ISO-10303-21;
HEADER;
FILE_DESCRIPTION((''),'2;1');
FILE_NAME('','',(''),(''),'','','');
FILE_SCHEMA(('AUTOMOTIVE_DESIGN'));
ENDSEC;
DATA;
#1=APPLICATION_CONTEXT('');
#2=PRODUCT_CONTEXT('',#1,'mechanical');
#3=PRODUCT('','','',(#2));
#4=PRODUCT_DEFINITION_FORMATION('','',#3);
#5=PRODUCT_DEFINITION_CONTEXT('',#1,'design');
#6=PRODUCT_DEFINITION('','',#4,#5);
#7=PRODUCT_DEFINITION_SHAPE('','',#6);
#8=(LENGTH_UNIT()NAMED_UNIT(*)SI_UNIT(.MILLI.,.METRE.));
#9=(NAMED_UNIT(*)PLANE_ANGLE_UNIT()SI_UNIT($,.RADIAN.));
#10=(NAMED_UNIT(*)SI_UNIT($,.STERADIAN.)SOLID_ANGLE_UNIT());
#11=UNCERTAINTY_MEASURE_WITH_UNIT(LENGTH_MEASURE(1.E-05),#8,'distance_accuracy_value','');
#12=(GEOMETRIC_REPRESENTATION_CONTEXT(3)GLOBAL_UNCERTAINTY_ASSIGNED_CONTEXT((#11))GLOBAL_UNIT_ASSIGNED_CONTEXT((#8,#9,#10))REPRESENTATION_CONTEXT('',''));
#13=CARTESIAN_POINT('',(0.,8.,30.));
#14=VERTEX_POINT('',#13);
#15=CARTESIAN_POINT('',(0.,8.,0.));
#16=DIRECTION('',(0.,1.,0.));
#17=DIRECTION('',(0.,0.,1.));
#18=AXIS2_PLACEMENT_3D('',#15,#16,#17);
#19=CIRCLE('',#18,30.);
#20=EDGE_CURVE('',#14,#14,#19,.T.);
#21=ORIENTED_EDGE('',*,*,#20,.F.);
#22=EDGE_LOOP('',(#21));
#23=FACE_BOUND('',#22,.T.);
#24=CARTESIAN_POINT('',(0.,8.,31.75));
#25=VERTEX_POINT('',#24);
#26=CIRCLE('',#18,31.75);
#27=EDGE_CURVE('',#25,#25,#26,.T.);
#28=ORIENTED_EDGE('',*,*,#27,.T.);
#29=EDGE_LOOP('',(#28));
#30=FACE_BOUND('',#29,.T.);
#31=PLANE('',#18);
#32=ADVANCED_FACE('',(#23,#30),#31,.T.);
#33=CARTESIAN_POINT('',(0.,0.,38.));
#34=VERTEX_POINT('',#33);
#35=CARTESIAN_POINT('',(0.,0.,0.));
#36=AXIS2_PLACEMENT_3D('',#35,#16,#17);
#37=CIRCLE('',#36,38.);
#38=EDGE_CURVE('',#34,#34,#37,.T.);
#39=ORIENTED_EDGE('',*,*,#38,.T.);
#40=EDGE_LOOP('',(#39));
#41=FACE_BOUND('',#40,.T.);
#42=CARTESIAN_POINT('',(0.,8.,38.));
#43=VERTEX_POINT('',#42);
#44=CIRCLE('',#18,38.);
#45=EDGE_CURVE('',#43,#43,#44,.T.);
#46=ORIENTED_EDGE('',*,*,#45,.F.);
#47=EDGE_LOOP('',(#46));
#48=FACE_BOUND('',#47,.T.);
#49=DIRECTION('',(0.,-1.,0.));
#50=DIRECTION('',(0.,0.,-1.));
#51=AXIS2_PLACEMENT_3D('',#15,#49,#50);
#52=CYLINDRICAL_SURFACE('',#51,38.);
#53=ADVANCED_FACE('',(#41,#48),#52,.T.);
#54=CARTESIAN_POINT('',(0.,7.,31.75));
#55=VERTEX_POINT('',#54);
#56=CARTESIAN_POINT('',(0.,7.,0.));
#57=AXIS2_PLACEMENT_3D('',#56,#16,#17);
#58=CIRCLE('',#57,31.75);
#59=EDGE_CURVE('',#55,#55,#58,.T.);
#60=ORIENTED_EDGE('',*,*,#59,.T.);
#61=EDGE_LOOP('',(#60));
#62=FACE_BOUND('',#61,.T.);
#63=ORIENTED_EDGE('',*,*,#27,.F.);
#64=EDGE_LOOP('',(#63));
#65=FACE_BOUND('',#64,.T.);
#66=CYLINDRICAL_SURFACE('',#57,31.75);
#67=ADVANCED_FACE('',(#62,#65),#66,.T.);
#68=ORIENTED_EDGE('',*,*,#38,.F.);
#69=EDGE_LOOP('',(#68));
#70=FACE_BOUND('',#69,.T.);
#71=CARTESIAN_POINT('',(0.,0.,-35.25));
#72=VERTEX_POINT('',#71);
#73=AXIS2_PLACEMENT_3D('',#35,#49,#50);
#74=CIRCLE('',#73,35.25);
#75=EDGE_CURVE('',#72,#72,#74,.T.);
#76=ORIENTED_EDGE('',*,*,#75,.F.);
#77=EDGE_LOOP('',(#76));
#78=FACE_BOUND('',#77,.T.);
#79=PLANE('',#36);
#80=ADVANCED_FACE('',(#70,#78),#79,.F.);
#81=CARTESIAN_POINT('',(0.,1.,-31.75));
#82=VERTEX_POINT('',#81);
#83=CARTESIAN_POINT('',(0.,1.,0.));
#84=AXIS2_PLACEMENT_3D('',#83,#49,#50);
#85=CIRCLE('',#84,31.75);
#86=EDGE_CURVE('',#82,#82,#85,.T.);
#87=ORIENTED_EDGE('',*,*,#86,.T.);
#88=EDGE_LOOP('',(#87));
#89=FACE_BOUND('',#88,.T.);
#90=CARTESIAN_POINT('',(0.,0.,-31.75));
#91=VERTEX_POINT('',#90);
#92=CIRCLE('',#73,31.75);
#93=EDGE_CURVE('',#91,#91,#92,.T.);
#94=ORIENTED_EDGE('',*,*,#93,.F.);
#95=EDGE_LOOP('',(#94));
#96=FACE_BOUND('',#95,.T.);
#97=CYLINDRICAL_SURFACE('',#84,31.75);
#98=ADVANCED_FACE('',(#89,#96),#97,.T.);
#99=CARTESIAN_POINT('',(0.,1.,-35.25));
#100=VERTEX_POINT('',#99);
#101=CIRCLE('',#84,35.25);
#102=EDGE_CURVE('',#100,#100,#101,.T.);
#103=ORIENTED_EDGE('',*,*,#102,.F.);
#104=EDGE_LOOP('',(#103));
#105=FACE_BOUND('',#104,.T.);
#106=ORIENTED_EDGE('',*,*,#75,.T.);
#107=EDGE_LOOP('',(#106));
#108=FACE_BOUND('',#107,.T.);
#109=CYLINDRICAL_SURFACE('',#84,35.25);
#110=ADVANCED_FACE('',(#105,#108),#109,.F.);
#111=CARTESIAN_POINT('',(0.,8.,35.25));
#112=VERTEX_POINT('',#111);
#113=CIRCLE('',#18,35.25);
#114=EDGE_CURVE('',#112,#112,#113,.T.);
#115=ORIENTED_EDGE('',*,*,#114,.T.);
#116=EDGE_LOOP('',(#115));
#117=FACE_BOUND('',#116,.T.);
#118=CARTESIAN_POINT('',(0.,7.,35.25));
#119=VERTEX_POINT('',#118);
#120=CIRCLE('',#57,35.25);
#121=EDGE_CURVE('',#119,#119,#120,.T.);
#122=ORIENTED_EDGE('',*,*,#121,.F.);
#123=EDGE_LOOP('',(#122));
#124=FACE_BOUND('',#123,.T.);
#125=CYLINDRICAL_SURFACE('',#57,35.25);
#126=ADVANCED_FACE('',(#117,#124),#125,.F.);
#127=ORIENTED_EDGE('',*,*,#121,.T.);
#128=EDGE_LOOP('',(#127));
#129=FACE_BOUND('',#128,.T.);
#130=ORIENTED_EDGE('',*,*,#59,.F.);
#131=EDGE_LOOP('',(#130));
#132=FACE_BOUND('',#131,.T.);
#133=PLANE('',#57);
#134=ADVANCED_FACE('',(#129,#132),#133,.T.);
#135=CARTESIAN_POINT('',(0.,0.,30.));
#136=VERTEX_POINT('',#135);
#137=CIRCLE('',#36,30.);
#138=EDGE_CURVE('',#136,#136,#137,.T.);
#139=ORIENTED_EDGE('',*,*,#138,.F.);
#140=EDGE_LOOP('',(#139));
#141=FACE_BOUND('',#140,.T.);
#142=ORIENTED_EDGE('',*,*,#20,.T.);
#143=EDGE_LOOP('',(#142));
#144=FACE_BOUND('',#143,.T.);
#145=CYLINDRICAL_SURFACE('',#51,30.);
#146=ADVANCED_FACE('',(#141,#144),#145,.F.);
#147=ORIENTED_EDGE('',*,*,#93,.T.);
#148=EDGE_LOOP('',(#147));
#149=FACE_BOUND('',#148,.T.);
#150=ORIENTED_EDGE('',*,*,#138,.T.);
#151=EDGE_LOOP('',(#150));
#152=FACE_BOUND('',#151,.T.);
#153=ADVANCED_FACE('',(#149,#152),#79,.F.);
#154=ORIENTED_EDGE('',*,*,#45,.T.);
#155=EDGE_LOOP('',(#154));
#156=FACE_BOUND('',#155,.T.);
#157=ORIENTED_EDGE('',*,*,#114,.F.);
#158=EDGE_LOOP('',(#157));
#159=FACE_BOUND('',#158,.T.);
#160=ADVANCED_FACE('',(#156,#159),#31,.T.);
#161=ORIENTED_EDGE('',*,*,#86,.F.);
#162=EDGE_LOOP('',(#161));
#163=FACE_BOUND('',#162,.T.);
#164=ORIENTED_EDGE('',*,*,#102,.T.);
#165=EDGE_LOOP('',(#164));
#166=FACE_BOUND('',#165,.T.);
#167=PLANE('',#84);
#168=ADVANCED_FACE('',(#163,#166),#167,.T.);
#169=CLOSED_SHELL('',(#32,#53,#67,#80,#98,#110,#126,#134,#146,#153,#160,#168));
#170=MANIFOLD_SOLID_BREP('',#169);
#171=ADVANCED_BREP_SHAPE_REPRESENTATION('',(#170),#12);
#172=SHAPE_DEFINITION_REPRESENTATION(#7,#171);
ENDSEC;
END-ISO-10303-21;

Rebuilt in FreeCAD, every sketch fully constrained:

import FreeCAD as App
import Part
import Sketcher

doc = App.newDocument("Part")
body = doc.addObject("PartDesign::Body", "Body")

# Sketch on XZ plane
sketch1 = doc.addObject("Sketcher::SketchObject", "Sketch")
body.addObject(sketch1)
sketch1.AttachmentSupport = (doc.XZ_Plane, [""])
sketch1.MapMode = "FlatFace"
sketch1.addGeometry(Part.Circle(App.Vector(0, 0, 0), App.Vector(0, 0, 1), 38), False)
sketch1.addGeometry(Part.Circle(App.Vector(0, 0, 0), App.Vector(0, 0, 1), 30), False)
sketch1.addConstraint(Sketcher.Constraint("Coincident", 0, 3, -1, 1))
sketch1.addConstraint(Sketcher.Constraint("Coincident", 1, 3, -1, 1))
sketch1.addConstraint(Sketcher.Constraint("Diameter", 0, 76.0))
sketch1.addConstraint(Sketcher.Constraint("Diameter", 1, 60.0))
pad1 = doc.addObject("PartDesign::Pad", "Pad")
body.addObject(pad1)
pad1.Profile = sketch1
pad1.Length = 8
pad1.Reversed = True

# Sketch on XZ plane
sketch2 = doc.addObject("Sketcher::SketchObject", "Sketch001")
body.addObject(sketch2)
sketch2.AttachmentSupport = (doc.XZ_Plane, [""])
sketch2.MapMode = "FlatFace"
sketch2.AttachmentOffset = App.Placement(App.Vector(0, 0, -8), App.Rotation())
sketch2.addGeometry(Part.Circle(App.Vector(0, 0, 0), App.Vector(0, 0, 1), 35), False)
sketch2.addGeometry(Part.Circle(App.Vector(0, 0, 0), App.Vector(0, 0, 1), 32), False)
sketch2.addConstraint(Sketcher.Constraint("Coincident", 0, 3, -1, 1))
sketch2.addConstraint(Sketcher.Constraint("Coincident", 1, 3, -1, 1))
sketch2.addConstraint(Sketcher.Constraint("Diameter", 0, 70.5))
sketch2.addConstraint(Sketcher.Constraint("Diameter", 1, 63.5))
pocket1 = doc.addObject("PartDesign::Pocket", "Pocket")
body.addObject(pocket1)
pocket1.Profile = sketch2
pocket1.Length = 1
pocket1.Reversed = True

# Sketch on XZ plane
sketch3 = doc.addObject("Sketcher::SketchObject", "Sketch002")
body.addObject(sketch3)
sketch3.AttachmentSupport = (doc.XZ_Plane, [""])
sketch3.MapMode = "FlatFace"
sketch3.addGeometry(Part.Circle(App.Vector(0, 0, 0), App.Vector(0, 0, 1), 35), False)
sketch3.addGeometry(Part.Circle(App.Vector(0, 0, 0), App.Vector(0, 0, 1), 32), False)
sketch3.addConstraint(Sketcher.Constraint("Coincident", 0, 3, -1, 1))
sketch3.addConstraint(Sketcher.Constraint("Coincident", 1, 3, -1, 1))
sketch3.addConstraint(Sketcher.Constraint("Diameter", 0, 70.5))
sketch3.addConstraint(Sketcher.Constraint("Diameter", 1, 63.5))
pocket2 = doc.addObject("PartDesign::Pocket", "Pocket001")
body.addObject(pocket2)
pocket2.Profile = sketch3
pocket2.Length = 1

doc.recompute()
